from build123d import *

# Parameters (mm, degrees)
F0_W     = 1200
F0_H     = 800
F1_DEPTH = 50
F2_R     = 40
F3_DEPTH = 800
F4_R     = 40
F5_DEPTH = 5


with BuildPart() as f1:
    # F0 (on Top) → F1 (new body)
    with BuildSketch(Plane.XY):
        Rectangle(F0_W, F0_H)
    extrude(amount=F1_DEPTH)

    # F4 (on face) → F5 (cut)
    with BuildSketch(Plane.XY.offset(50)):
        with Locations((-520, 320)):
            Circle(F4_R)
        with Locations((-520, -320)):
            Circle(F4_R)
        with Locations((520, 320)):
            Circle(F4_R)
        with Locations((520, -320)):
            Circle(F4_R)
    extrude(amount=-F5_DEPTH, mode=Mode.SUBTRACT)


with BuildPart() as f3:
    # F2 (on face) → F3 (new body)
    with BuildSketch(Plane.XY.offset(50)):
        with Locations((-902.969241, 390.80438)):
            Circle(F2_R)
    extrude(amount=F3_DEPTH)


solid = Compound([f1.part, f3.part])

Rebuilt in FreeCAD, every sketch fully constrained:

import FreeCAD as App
import Part
import Sketcher

V = App.Vector

doc = App.newDocument("Part")
params = doc.addObject("Spreadsheet::Sheet", "Params")
for row, (alias, value) in enumerate([
    ("sketch1_width", "1200 mm"),
    ("sketch1_height", "800 mm"),
    ("pad1_length", "50 mm"),
    ("sketch2_diameter", "80 mm"),
    ("pocket1_length", "5 mm"),
    ("sketch3_diameter", "80 mm"),
    ("pad2_length", "800 mm"),
], start=1):
    params.set(f"A{row}", alias)
    params.set(f"B{row}", "=" + value)
    params.setAlias(f"B{row}", alias)

body = doc.addObject("PartDesign::Body", "Body")

# Sketch on XY plane
sketch1 = body.newObject("Sketcher::SketchObject", "Sketch")
sketch1.AttachmentSupport = (doc.getObject("XY_Plane"), [""])
sketch1.MapMode = "FlatFace"
sketch1.addGeometry([
    Part.LineSegment(V(-600, 400, 0), V(-600, -400, 0)),
    Part.LineSegment(V(-600, -400, 0), V(600, -400, 0)),
    Part.LineSegment(V(600, -400, 0), V(600, 400, 0)),
    Part.LineSegment(V(600, 400, 0), V(-600, 400, 0)),
], False)
sketch1.addConstraint([
    Sketcher.Constraint("Coincident", 0, 2, 1, 1),
    Sketcher.Constraint("Coincident", 1, 2, 2, 1),
    Sketcher.Constraint("Coincident", 2, 2, 3, 1),
    Sketcher.Constraint("Coincident", 3, 2, 0, 1),
    Sketcher.Constraint("Vertical", 0),
    Sketcher.Constraint("Horizontal", 1),
    Sketcher.Constraint("Vertical", 2),
    Sketcher.Constraint("Horizontal", 3),
    Sketcher.Constraint("Symmetric", 0, 2, 2, 2, -1, 1),
    Sketcher.Constraint("DistanceX", 1, 1, 1, 2, 1200.0),
    Sketcher.Constraint("DistanceY", 0, 2, 0, 1, 800.0),
])
sketch1.setExpression("Constraints[9]", "Params.sketch1_width")
sketch1.setExpression("Constraints[10]", "Params.sketch1_height")
pad1 = body.newObject("PartDesign::Pad", "Pad")
pad1.Profile = sketch1
pad1.setExpression("Length", "Params.pad1_length")

# Sketch on XY plane
sketch2 = body.newObject("Sketcher::SketchObject", "Sketch001")
sketch2.AttachmentSupport = (doc.getObject("XY_Plane"), [""])
sketch2.MapMode = "FlatFace"
sketch2.AttachmentOffset = App.Placement(V(0, 0, 50), App.Rotation())
sketch2.addGeometry([
    Part.Circle(V(-520, 320, 0), V(0, 0, 1), 40),
    Part.Circle(V(-520, -320, 0), V(0, 0, 1), 40),
    Part.Circle(V(520, 320, 0), V(0, 0, 1), 40),
    Part.Circle(V(520, -320, 0), V(0, 0, 1), 40),
], False)
sketch2.addConstraint([
    Sketcher.Constraint("Equal", 0, 1),
    Sketcher.Constraint("Equal", 1, 2),
    Sketcher.Constraint("Equal", 2, 3),
    Sketcher.Constraint("Symmetric", 1, 3, 2, 3, -1, 1),
    Sketcher.Constraint("Symmetric", 0, 3, 3, 3, -1, 1),
    Sketcher.Constraint("Symmetric", 0, 3, 2, 3, -2),
    Sketcher.Constraint("Diameter", 0, 80.0),
    Sketcher.Constraint("DistanceX", 0, 3, -1, 1, 520.0),
    Sketcher.Constraint("DistanceY", -1, 1, 0, 3, 320.0),
])
sketch2.setExpression("Constraints[6]", "Params.sketch2_diameter")
pocket1 = body.newObject("PartDesign::Pocket", "Pocket")
pocket1.Profile = sketch2
pocket1.setExpression("Length", "Params.pocket1_length")
body2 = doc.addObject("PartDesign::Body", "Body001")

# Sketch on XY plane
sketch3 = body2.newObject("Sketcher::SketchObject", "Sketch002")
sketch3.AttachmentSupport = (doc.getObject("XY_Plane001"), [""])
sketch3.MapMode = "FlatFace"
sketch3.AttachmentOffset = App.Placement(V(0, 0, 50), App.Rotation())
sketch3.addGeometry(Part.Circle(V(-903, 391, 0), V(0, 0, 1), 40), False)
sketch3.addConstraint([
    Sketcher.Constraint("Diameter", 0, 80.0),
    Sketcher.Constraint("DistanceX", 0, 3, -1, 1, 902.969241),
    Sketcher.Constraint("DistanceY", -1, 1, 0, 3, 390.80438),
])
sketch3.setExpression("Constraints[0]", "Params.sketch3_diameter")
pad2 = body2.newObject("PartDesign::Pad", "Pad001")
pad2.Profile = sketch3
pad2.setExpression("Length", "Params.pad2_length")

doc.recompute()
